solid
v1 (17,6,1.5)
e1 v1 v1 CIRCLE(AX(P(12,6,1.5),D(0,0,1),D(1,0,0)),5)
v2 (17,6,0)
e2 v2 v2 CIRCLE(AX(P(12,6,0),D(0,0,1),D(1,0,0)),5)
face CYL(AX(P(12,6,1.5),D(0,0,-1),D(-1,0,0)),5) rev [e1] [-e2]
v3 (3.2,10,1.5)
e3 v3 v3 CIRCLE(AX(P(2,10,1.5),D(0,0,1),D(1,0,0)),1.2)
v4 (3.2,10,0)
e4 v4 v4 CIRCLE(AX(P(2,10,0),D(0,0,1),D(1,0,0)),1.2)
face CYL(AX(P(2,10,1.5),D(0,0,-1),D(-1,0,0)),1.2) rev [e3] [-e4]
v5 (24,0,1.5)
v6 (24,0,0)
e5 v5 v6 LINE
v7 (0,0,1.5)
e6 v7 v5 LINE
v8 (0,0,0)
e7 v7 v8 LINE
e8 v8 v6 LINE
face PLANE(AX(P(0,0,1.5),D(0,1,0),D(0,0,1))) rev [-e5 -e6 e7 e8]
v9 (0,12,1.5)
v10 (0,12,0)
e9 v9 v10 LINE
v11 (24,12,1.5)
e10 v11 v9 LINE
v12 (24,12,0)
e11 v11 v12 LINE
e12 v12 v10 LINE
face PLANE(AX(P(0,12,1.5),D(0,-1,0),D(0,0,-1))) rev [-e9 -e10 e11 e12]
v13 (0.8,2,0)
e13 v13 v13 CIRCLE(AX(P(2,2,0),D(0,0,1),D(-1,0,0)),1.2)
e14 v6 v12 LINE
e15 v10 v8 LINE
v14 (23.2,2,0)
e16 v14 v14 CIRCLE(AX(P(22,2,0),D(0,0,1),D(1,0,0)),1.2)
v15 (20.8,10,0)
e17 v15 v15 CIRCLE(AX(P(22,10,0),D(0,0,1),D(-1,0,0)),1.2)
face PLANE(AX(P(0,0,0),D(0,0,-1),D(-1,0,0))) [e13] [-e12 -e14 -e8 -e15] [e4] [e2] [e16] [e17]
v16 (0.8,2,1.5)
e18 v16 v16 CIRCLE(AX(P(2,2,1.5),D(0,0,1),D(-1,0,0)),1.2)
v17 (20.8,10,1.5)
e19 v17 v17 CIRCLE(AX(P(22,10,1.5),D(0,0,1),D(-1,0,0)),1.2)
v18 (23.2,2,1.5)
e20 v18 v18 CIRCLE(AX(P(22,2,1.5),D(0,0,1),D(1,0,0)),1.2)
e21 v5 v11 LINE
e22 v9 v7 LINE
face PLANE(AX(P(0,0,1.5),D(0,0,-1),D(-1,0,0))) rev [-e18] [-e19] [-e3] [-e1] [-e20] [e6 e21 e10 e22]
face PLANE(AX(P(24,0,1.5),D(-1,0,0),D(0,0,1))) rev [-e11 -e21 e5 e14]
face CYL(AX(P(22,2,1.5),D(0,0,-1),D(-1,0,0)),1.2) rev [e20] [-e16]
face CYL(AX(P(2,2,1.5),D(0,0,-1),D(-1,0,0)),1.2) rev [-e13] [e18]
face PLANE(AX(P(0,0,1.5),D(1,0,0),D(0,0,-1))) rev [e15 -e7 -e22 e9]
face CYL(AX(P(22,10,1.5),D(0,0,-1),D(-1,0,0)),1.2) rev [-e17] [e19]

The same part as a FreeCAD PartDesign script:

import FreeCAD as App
import Part
import Sketcher

V = App.Vector
Q = App.Units.Quantity

doc = App.newDocument("Part")
params = doc.addObject("Spreadsheet::Sheet", "Params")
for row, (alias, value) in enumerate([
    ("sketch1_diameter", "10 mm"),
    ("sketch1_diameter2", "2.4 mm"),
    ("sketch1_width", "24 mm"),
    ("sketch1_height", "12 mm"),
    ("pad1_length", "1.5 mm"),
], start=1):
    params.set(f"A{row}", alias)
    params.set(f"B{row}", "=" + value)
    params.setAlias(f"B{row}", alias)

body = doc.addObject("PartDesign::Body", "Body")

# Sketch on XY plane
sketch1 = doc.addObject("Sketcher::SketchObject", "Sketch")
body.addObject(sketch1)
sketch1.AttachmentSupport = (doc.XY_Plane, [""])
sketch1.MapMode = "FlatFace"
sketch1.addGeometry([
    Part.LineSegment(V(0, 12, 0), V(0, 0, 0)),  # 0
    Part.LineSegment(V(0, 0, 0), V(24, 0, 0)),  # 1
    Part.LineSegment(V(24, 0, 0), V(24, 12, 0)),  # 2
    Part.LineSegment(V(24, 12, 0), V(0, 12, 0)),  # 3
    Part.Circle(V(2, 2, 0), V(0, 0, 1), 1.2),  # 4
    Part.Circle(V(22, 2, 0), V(0, 0, 1), 1.2),  # 5
    Part.Circle(V(2, 10, 0), V(0, 0, 1), 1.2),  # 6
    Part.Circle(V(12, 6, 0), V(0, 0, 1), 5),  # 7
    Part.Circle(V(22, 10, 0), V(0, 0, 1), 1.2),  # 8
], False)
sketch1.addConstraint([
    Sketcher.Constraint("Coincident", 0, 2, 1, 1),
    Sketcher.Constraint("Coincident", 1, 2, 2, 1),
    Sketcher.Constraint("Coincident", 2, 2, 3, 1),
    Sketcher.Constraint("Coincident", 3, 2, 0, 1),
    Sketcher.Constraint("Vertical", 0),
    Sketcher.Constraint("Horizontal", 1),
    Sketcher.Constraint("Vertical", 2),
    Sketcher.Constraint("Horizontal", 3),
    Sketcher.Constraint("Coincident", 0, 2, -1, 1),
    Sketcher.Constraint("Equal", 4, 5),
    Sketcher.Constraint("Equal", 5, 6),
    Sketcher.Constraint("Equal", 6, 8),
    Sketcher.Constraint("Horizontal", 4, 3, 5, 3),
    Sketcher.Constraint("Horizontal", 6, 3, 8, 3),
    Sketcher.Constraint("Vertical", 4, 3, 6, 3),
    Sketcher.Constraint("Vertical", 5, 3, 8, 3),
    Sketcher.Constraint("Diameter", 7, Q("10 mm")),
    Sketcher.Constraint("Diameter", 4, Q("2.4 mm")),
    Sketcher.Constraint("DistanceX", 1, 1, 1, 2, Q("24 mm")),
    Sketcher.Constraint("DistanceY", 0, 2, 0, 1, Q("12 mm")),
    Sketcher.Constraint("DistanceX", -1, 1, 4, 3, Q("2 mm")),
    Sketcher.Constraint("DistanceY", -1, 1, 4, 3, Q("2 mm")),
    Sketcher.Constraint("DistanceX", -1, 1, 5, 3, Q("22 mm")),
    Sketcher.Constraint("DistanceY", -1, 1, 6, 3, Q("10 mm")),
    Sketcher.Constraint("DistanceX", -1, 1, 7, 3, Q("12 mm")),
    Sketcher.Constraint("DistanceY", -1, 1, 7, 3, Q("6 mm")),
])
sketch1.setExpression("Constraints[16]", "Params.sketch1_diameter")
sketch1.setExpression("Constraints[17]", "Params.sketch1_diameter2")
sketch1.setExpression("Constraints[18]", "Params.sketch1_width")
sketch1.setExpression("Constraints[19]", "Params.sketch1_height")
pad1 = doc.addObject("PartDesign::Pad", "Pad")
body.addObject(pad1)
pad1.Profile = sketch1
pad1.setExpression("Length", "Params.pad1_length")

doc.recompute()
